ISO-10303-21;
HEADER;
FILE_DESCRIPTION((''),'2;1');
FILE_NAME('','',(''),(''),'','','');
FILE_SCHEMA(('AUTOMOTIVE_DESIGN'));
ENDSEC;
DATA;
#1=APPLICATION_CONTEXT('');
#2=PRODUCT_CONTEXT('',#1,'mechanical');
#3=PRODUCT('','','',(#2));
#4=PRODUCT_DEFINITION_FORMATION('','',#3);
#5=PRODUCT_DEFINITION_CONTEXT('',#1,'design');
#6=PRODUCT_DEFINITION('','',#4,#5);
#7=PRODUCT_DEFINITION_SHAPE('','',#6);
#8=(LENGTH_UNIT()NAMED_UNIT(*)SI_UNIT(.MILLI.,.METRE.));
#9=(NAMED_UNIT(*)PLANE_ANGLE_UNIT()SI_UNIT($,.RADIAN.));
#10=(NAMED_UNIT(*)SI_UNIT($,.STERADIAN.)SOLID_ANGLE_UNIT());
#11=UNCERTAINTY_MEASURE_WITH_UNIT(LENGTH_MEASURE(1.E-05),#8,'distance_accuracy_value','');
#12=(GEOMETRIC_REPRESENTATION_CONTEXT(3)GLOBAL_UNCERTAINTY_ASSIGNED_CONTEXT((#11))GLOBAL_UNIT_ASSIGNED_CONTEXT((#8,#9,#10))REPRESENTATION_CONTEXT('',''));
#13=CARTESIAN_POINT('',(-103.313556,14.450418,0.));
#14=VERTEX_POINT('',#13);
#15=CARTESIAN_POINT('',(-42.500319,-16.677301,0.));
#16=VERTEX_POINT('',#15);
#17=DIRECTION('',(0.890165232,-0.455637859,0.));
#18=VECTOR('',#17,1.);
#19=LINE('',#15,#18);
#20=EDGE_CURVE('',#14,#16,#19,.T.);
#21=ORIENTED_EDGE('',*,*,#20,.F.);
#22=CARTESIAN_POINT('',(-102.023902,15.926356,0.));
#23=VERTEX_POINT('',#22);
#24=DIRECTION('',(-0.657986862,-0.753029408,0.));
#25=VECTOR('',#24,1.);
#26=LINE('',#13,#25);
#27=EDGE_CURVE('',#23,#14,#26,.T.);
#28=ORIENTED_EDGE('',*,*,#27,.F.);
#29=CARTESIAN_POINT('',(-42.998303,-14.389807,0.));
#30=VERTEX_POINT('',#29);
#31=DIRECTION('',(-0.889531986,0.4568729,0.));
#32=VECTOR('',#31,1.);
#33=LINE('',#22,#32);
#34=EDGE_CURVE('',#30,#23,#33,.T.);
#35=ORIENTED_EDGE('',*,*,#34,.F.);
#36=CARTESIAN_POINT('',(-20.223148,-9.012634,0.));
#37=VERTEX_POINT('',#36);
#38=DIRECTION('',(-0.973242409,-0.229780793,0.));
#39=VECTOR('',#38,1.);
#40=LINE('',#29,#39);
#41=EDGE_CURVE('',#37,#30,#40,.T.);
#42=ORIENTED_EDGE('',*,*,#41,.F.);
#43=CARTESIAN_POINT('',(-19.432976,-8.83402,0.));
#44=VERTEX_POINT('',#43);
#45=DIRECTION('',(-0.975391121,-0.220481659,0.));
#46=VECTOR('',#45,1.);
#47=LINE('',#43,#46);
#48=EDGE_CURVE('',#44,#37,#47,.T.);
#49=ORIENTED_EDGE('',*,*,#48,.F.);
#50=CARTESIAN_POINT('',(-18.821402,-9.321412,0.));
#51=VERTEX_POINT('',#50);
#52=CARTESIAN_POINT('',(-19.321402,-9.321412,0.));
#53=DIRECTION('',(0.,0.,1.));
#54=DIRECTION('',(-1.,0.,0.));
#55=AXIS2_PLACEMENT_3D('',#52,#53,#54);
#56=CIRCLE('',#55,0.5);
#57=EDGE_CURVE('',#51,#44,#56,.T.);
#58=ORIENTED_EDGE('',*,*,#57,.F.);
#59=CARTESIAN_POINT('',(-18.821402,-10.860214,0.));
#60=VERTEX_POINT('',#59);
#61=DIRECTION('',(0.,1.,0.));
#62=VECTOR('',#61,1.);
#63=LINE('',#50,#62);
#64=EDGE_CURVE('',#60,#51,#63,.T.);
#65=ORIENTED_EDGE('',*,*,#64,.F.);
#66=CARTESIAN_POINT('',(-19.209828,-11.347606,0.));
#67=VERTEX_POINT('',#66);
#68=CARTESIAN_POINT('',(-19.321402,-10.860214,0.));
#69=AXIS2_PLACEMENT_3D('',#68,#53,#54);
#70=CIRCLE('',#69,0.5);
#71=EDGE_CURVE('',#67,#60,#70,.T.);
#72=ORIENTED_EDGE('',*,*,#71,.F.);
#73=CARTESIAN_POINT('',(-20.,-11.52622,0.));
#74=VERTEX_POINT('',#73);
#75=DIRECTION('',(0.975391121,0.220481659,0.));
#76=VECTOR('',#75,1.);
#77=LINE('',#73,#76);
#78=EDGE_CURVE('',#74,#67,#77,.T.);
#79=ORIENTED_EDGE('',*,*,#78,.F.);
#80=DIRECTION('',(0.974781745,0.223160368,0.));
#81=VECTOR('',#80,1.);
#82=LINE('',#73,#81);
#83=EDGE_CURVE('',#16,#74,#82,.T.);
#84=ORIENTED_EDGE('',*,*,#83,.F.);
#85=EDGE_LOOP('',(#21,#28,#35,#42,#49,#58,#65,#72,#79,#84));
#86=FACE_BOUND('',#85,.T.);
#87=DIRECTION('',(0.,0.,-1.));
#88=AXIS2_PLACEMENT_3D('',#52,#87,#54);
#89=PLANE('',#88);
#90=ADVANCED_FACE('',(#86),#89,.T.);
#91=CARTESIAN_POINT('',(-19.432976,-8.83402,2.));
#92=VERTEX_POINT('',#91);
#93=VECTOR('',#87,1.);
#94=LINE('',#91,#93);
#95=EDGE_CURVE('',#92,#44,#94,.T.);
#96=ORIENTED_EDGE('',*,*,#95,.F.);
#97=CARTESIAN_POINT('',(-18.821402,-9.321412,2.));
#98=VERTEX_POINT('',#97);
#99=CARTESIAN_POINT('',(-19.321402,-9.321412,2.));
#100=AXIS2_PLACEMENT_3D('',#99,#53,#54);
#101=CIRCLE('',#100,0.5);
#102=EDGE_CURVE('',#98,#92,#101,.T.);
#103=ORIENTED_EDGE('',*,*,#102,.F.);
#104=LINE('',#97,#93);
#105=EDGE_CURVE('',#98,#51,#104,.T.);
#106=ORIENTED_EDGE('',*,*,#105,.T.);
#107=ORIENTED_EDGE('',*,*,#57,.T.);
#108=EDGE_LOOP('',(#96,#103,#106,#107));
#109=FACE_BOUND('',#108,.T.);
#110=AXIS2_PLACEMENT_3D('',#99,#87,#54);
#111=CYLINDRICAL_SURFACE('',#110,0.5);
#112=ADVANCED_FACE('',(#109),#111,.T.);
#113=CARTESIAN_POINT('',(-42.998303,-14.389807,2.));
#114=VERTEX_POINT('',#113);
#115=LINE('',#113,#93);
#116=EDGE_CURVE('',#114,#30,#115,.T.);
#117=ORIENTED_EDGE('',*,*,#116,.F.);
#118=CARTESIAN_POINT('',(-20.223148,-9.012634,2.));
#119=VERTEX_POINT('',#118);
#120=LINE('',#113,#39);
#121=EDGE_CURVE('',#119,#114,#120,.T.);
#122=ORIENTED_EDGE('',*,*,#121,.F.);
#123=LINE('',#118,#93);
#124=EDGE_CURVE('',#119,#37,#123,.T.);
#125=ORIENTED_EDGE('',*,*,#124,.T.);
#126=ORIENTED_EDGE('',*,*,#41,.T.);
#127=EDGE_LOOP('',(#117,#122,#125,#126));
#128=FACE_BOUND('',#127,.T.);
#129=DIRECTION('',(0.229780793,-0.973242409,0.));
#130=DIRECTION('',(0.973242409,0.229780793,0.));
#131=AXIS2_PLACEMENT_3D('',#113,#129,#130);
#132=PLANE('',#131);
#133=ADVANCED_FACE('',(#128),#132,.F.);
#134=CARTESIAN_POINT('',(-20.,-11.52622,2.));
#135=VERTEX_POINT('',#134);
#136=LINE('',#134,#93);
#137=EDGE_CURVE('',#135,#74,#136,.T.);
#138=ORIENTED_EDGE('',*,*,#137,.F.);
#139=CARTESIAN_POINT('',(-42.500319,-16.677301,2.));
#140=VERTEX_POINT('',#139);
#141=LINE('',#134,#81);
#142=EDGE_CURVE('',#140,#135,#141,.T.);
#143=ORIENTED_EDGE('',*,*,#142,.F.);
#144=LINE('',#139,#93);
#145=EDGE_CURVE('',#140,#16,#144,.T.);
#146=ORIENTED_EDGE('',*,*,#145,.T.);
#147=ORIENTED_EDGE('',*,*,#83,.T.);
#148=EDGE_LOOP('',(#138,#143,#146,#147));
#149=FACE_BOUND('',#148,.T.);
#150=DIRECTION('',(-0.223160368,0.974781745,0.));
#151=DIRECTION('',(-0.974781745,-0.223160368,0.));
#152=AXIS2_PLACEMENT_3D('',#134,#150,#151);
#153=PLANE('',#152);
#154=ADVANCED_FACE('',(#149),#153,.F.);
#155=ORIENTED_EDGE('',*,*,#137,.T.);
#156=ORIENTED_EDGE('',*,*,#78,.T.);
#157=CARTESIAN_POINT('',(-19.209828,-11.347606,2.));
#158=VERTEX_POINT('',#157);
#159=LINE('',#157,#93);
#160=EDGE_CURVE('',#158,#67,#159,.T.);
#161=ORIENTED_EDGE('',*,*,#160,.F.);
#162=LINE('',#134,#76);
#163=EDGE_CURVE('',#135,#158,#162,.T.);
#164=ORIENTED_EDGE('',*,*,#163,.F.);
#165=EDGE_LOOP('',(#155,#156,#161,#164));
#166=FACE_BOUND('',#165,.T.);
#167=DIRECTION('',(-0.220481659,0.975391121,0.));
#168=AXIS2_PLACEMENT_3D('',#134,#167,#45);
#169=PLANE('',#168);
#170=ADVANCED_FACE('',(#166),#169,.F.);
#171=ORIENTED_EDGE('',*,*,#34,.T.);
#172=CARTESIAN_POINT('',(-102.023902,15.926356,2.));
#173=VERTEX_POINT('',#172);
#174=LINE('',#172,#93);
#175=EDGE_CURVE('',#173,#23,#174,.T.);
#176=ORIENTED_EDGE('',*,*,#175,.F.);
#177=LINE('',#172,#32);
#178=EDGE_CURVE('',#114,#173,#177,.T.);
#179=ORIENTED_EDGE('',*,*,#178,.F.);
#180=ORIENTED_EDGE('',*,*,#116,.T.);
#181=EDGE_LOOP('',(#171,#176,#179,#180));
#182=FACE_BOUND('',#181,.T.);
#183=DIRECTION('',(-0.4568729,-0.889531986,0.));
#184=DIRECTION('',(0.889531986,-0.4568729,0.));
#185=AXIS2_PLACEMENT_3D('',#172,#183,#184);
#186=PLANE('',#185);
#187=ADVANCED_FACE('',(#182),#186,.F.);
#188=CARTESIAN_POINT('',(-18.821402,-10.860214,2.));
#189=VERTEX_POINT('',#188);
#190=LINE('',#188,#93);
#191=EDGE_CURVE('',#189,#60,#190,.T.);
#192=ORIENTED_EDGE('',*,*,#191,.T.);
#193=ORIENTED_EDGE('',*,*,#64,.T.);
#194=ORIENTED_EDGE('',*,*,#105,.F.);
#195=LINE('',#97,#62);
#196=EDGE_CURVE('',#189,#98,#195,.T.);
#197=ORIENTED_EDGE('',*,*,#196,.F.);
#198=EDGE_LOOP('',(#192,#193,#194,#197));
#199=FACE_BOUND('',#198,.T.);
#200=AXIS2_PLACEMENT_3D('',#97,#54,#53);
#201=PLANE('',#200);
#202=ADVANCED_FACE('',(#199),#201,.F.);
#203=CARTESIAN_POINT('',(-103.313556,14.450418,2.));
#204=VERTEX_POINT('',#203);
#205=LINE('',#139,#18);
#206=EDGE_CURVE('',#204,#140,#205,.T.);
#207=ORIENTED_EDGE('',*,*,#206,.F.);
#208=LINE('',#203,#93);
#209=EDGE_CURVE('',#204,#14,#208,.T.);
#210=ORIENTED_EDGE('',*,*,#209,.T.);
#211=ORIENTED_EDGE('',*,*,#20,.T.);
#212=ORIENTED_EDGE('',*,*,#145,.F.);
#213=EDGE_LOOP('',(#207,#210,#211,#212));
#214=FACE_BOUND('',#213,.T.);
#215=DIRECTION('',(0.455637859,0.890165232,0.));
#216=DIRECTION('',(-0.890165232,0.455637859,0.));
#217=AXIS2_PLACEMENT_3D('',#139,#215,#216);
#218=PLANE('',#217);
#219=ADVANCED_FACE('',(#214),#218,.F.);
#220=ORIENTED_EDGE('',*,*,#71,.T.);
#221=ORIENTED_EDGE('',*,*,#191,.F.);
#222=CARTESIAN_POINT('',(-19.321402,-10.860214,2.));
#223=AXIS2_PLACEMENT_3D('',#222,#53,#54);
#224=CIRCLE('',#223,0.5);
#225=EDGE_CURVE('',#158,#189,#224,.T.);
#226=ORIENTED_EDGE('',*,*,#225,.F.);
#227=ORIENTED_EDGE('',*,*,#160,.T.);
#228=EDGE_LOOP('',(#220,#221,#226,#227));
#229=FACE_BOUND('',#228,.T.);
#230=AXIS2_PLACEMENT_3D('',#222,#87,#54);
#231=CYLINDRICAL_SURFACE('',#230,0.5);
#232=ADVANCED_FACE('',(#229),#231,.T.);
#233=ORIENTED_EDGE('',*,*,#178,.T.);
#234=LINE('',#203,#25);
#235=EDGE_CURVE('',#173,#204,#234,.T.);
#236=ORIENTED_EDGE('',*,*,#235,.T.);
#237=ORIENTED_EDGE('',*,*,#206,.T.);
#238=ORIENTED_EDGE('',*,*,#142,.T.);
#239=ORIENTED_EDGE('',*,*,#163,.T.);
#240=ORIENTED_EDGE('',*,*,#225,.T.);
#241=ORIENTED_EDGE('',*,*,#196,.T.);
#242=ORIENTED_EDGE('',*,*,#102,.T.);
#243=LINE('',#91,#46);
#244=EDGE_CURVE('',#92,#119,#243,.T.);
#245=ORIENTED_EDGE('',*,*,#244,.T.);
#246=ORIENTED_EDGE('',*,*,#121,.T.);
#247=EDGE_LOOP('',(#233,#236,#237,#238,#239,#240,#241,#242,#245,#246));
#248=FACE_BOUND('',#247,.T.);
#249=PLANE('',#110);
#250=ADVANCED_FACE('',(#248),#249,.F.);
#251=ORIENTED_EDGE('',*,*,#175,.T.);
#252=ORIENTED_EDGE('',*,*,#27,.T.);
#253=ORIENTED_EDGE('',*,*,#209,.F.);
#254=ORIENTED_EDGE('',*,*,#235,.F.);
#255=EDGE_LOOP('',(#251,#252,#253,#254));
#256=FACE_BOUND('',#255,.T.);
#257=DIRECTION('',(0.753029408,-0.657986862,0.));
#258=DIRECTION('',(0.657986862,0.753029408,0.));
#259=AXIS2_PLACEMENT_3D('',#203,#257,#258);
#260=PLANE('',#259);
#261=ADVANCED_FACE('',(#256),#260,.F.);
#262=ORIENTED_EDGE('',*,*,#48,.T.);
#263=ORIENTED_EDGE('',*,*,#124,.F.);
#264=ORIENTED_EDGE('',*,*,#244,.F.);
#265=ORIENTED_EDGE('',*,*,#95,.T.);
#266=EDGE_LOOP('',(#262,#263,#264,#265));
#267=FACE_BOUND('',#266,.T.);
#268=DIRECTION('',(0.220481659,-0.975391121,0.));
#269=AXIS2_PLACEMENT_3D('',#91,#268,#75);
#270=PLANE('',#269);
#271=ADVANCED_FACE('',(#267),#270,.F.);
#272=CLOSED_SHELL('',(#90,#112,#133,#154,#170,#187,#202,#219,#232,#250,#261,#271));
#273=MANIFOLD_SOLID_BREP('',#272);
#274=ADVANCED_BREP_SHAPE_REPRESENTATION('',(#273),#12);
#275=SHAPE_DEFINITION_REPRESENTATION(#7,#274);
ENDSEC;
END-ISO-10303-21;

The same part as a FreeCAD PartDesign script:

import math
import FreeCAD as App
import Part
import Sketcher

V = App.Vector
Q = App.Units.Quantity

doc = App.newDocument("Part")
body = doc.addObject("PartDesign::Body", "Body")

# Sketch on XY plane
sketch1 = doc.addObject("Sketcher::SketchObject", "Sketch")
body.addObject(sketch1)
sketch1.AttachmentSupport = (doc.XY_Plane, [""])
sketch1.MapMode = "FlatFace"
sketch1.addGeometry(Part.LineSegment(V(-102, 15.9, 0), V(-103.3, 14.5, 0)), False)
sketch1.addGeometry(Part.LineSegment(V(-103.3, 14.5, 0), V(-42.5, -16.7, 0)), False)
sketch1.addGeometry(Part.LineSegment(V(-42.5, -16.7, 0), V(-20, -11.5, 0)), False)
sketch1.addGeometry(Part.LineSegment(V(-20, -11.5, 0), V(-19.2, -11.3, 0)), False)
sketch1.addGeometry(Part.ArcOfCircle(Part.Circle(V(-19.3, -10.9, 0), V(0, 0, 1), 0.5), math.radians(-77), math.radians(0)), False)
sketch1.addGeometry(Part.LineSegment(V(-18.8, -10.9, 0), V(-18.8, -9.3, 0)), False)
sketch1.addGeometry(Part.ArcOfCircle(Part.Circle(V(-19.3, -9.3, 0), V(0, 0, 1), 0.5), math.radians(0), math.radians(103)), False)
sketch1.addGeometry(Part.LineSegment(V(-19.4, -8.8, 0), V(-20.2, -9, 0)), False)
sketch1.addGeometry(Part.LineSegment(V(-20.2, -9, 0), V(-43, -14.4, 0)), False)
sketch1.addGeometry(Part.LineSegment(V(-43, -14.4, 0), V(-102, 15.9, 0)), False)
sketch1.addConstraint(Sketcher.Constraint("Coincident", 0, 2, 1, 1))
sketch1.addConstraint(Sketcher.Constraint("Coincident", 1, 2, 2, 1))
sketch1.addConstraint(Sketcher.Constraint("Coincident", 2, 2, 3, 1))
sketch1.addConstraint(Sketcher.Constraint("Coincident", 3, 2, 4, 1))
sketch1.addConstraint(Sketcher.Constraint("Tangent", 4, 2, 5, 1))
sketch1.addConstraint(Sketcher.Constraint("Tangent", 5, 2, 6, 1))
sketch1.addConstraint(Sketcher.Constraint("Coincident", 6, 2, 7, 1))
sketch1.addConstraint(Sketcher.Constraint("Coincident", 7, 2, 8, 1))
sketch1.addConstraint(Sketcher.Constraint("Coincident", 8, 2, 9, 1))
sketch1.addConstraint(Sketcher.Constraint("Coincident", 9, 2, 0, 1))
sketch1.addConstraint(Sketcher.Constraint("Vertical", 5))
sketch1.addConstraint(Sketcher.Constraint("Equal", 4, 6))
sketch1.addConstraint(Sketcher.Constraint("Parallel", 3, 7))
sketch1.addConstraint(Sketcher.Constraint("Equal", 3, 7))
sketch1.addConstraint(Sketcher.Constraint("Radius", 4, Q("0.5 mm")))
sketch1.addConstraint(Sketcher.Constraint("DistanceX", 2, 2, -1, 1, Q("20 mm")))
sketch1.addConstraint(Sketcher.Constraint("Distance", 0, Q("1.96 mm")))
sketch1.addConstraint(Sketcher.Constraint("DistanceY", 5, 1, 5, 2, Q("1.538802 mm")))
sketch1.addConstraint(Sketcher.Constraint("DistanceX", 4, 3, -1, 1, Q("19.321402 mm")))
sketch1.addConstraint(Sketcher.Constraint("DistanceY", 1, 2, -1, 1, Q("16.677301 mm")))
sketch1.addConstraint(Sketcher.Constraint("DistanceX", 9, 2, -1, 1, Q("102.023902 mm")))
sketch1.addConstraint(Sketcher.Constraint("DistanceX", 8, 2, 4, 3, Q("23.676901 mm")))
sketch1.addConstraint(Sketcher.Constraint("DistanceY", 8, 2, 3, 2, Q("3.042201 mm")))
sketch1.addConstraint(Sketcher.Constraint("Distance", 3, Q("0.810108 mm")))
sketch1.addConstraint(Sketcher.Constraint("Distance", 9, Q("66.355791 mm")))
sketch1.addConstraint(Sketcher.Constraint("DistanceX", 1, 2, -1, 1, Q("42.500319 mm")))
sketch1.addConstraint(Sketcher.Constraint("DistanceY", 2, 2, -1, 1, Q("11.52622 mm")))
sketch1.addConstraint(Sketcher.Constraint("DistanceY", 6, 2, -1, 1, Q("8.83402 mm")))
sketch1.addConstraint(Sketcher.Constraint("DistanceX", 7, 2, -1, 1, Q("20.223148 mm")))
sketch1.addConstraint(Sketcher.Constraint("DistanceY", 6, 3, 0, 2, Q("23.77183 mm")))
pad1 = doc.addObject("PartDesign::Pad", "Pad")
body.addObject(pad1)
pad1.Profile = sketch1
pad1.Length = 2

doc.recompute()
